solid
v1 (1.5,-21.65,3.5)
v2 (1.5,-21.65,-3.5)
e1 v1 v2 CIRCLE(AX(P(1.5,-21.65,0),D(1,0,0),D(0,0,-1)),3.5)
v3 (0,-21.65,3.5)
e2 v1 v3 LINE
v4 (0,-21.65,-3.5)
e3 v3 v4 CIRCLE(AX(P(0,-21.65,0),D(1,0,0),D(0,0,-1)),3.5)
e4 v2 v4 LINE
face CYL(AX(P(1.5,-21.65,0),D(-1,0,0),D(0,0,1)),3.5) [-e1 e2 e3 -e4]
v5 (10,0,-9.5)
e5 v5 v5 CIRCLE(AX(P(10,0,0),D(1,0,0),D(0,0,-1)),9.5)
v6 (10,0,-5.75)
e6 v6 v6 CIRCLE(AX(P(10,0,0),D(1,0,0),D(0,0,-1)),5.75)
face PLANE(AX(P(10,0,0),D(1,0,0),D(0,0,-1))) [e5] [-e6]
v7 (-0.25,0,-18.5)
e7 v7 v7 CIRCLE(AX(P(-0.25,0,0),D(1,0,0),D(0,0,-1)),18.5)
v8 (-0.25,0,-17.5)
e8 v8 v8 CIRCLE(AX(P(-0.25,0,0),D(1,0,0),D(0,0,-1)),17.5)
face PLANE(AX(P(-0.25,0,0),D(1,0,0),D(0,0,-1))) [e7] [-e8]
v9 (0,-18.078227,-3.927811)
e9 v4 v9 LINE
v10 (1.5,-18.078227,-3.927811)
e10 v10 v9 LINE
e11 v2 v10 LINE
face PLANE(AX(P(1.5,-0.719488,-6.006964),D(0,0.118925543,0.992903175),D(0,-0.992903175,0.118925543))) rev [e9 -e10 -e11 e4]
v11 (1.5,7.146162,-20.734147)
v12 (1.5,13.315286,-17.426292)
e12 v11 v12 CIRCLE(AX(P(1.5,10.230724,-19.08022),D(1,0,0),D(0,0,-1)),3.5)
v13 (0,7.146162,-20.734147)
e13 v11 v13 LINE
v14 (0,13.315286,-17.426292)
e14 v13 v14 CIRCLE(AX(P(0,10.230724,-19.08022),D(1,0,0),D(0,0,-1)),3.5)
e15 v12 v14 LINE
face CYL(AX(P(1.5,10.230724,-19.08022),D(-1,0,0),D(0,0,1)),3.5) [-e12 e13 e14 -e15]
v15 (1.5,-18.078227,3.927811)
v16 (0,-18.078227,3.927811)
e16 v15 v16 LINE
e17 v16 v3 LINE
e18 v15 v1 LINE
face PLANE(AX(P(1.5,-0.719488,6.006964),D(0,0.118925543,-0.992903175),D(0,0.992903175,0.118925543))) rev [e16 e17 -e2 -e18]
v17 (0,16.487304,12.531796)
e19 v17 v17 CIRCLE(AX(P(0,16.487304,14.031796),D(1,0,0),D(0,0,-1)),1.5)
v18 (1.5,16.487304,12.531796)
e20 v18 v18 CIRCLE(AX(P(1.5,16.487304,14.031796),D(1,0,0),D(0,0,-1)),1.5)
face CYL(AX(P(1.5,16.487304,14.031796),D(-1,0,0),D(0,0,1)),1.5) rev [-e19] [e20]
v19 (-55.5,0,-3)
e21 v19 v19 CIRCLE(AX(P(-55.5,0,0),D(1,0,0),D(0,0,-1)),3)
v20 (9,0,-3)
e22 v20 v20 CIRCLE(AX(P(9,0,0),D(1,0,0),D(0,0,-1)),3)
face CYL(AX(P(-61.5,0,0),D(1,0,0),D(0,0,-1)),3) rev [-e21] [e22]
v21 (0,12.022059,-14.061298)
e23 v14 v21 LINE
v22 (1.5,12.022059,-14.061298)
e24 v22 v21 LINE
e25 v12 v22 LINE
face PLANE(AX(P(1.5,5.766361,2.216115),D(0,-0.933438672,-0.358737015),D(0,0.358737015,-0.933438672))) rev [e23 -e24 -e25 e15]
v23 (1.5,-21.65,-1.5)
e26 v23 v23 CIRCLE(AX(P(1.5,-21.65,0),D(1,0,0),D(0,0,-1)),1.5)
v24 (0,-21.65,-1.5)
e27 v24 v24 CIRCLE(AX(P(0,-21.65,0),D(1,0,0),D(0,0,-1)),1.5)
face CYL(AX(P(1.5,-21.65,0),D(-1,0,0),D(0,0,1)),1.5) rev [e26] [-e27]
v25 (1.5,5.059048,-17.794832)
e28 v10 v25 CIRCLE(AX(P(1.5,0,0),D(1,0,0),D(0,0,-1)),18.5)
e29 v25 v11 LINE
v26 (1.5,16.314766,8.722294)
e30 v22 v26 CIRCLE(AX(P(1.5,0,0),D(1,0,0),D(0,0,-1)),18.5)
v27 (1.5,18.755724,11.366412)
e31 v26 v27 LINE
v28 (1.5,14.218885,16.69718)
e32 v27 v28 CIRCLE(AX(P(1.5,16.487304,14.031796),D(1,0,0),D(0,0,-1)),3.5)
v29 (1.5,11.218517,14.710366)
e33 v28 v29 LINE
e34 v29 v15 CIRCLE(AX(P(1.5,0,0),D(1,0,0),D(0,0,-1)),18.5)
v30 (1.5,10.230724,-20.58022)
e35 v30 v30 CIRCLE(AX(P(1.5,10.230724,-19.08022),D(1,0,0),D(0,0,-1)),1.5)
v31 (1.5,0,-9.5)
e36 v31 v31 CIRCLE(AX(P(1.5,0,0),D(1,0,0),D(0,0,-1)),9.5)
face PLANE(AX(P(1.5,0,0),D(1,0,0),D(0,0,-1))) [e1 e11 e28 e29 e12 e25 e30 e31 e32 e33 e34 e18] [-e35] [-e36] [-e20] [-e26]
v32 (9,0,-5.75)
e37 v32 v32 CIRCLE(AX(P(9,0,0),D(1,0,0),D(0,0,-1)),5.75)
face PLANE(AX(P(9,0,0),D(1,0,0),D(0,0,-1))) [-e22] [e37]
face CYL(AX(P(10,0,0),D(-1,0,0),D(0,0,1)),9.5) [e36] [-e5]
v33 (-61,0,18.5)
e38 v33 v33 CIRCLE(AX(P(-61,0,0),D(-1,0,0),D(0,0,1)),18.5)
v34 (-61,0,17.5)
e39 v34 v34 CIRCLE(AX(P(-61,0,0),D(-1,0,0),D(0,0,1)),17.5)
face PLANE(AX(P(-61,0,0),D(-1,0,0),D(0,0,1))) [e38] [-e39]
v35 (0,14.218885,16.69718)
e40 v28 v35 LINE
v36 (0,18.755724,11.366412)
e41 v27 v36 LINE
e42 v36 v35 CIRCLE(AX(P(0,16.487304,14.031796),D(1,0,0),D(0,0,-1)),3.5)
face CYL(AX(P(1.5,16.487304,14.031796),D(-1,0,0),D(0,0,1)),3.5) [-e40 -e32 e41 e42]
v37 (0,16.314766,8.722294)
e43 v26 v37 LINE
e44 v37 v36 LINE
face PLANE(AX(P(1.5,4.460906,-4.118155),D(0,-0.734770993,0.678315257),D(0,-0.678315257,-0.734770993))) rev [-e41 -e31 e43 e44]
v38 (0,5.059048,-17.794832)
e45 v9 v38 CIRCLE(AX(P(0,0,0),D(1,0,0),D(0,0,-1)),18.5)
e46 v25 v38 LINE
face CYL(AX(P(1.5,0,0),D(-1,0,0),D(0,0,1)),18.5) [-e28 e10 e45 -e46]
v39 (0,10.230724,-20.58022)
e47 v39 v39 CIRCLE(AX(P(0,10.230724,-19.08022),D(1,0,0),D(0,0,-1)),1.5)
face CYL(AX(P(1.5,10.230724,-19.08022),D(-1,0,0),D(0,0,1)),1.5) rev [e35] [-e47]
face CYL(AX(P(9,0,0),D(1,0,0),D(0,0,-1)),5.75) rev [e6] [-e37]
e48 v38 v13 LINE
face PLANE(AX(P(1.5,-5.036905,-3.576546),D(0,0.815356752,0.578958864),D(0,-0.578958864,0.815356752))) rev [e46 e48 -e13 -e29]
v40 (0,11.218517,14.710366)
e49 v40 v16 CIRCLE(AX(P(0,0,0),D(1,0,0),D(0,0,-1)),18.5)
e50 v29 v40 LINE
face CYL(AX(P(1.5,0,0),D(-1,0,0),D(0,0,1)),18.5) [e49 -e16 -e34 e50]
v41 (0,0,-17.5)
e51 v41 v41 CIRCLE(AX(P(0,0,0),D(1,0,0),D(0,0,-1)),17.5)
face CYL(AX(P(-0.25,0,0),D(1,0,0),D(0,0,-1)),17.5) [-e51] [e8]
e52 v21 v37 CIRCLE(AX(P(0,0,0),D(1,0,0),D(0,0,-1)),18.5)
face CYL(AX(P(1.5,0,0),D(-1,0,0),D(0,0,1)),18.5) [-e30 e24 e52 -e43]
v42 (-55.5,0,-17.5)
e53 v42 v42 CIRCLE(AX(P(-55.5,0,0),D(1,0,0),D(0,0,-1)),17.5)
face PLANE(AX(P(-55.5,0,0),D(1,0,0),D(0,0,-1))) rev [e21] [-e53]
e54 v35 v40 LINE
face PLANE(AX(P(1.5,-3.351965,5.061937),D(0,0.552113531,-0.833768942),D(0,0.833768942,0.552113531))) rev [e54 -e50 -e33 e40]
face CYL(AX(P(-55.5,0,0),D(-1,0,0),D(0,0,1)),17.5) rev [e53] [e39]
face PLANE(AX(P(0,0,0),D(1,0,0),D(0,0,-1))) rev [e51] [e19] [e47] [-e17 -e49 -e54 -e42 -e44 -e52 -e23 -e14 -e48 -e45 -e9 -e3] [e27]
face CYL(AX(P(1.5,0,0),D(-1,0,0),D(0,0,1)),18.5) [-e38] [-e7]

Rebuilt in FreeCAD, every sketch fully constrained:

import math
import FreeCAD as App
import Part
import Sketcher

V = App.Vector

doc = App.newDocument("Part")
params = doc.addObject("Spreadsheet::Sheet", "Params")
for row, (alias, value) in enumerate([
    ("sketch1_diameter", "3 mm"),
    ("sketch1_radius", "3.5 mm"),
    ("sketch1_radius2", "18.5 mm"),
    ("pad1_length", "1.5 mm"),
    ("sketch2_diameter", "37 mm"),
    ("pad2_length", "61.5 mm"),
    ("sketch3_diameter", "35 mm"),
    ("pocket1_length", "6 mm"),
    ("sketch4_diameter", "19 mm"),
    ("pad3_length", "8.5 mm"),
    ("sketch5_diameter", "11.5 mm"),
    ("pocket2_length", "1 mm"),
    ("sketch6_diameter", "6 mm"),
    ("sketch7_diameter", "37 mm"),
    ("sketch7_diameter2", "35 mm"),
    ("pocket4_length", "0.25 mm"),
    ("sketch8_diameter", "37 mm"),
    ("pocket5_length", "0.5 mm"),
], start=1):
    params.set(f"A{row}", alias)
    params.set(f"B{row}", "=" + value)
    params.setAlias(f"B{row}", alias)

body = doc.addObject("PartDesign::Body", "Body")

sketch1 = body.newObject("Sketcher::SketchObject", "Sketch")
sketch1.AttachmentSupport = (doc.getObject("YZ_Plane"), [""])
sketch1.MapMode = "FlatFace"
sketch1.addGeometry([
    Part.ArcOfCircle(Part.Circle(V(16.5, 14, 0), V(0, 0, 1), 3.5), math.radians(-50), math.radians(130)),
    Part.LineSegment(V(14.2, 16.7, 0), V(11.2, 14.7, 0)),
    Part.ArcOfCircle(Part.Circle(V(0, 0, 0), V(0, 0, 1), 18.5), math.radians(53), math.radians(168)),
    Part.LineSegment(V(-18.1, 3.9, 0), V(-21.6, 3.5, 0)),
    Part.ArcOfCircle(Part.Circle(V(-21.6, 0, 0), V(0, 0, 1), 3.5), math.radians(90), math.radians(270)),
    Part.LineSegment(V(-21.6, -3.5, 0), V(-18.1, -3.9, 0)),
    Part.ArcOfCircle(Part.Circle(V(0, 0, 0), V(0, 0, 1), 18.5), math.radians(-168), math.radians(-74)),
    Part.LineSegment(V(5.1, -17.8, 0), V(7.1, -20.7, 0)),
    Part.ArcOfCircle(Part.Circle(V(10.2, -19.1, 0), V(0, 0, 1), 3.5), math.radians(-152), math.radians(28)),
    Part.LineSegment(V(13.3, -17.4, 0), V(12, -14.1, 0)),
    Part.ArcOfCircle(Part.Circle(V(0, 0, 0), V(0, 0, 1), 18.5), math.radians(-49), math.radians(28)),
    Part.LineSegment(V(16.3, 8.7, 0), V(18.8, 11.4, 0)),
    Part.Circle(V(-21.6, 0, 0), V(0, 0, 1), 1.5),
    Part.Circle(V(16.5, 14, 0), V(0, 0, 1), 1.5),
    Part.Circle(V(10.2, -19.1, 0), V(0, 0, 1), 1.5),
], False)
sketch1.addConstraint([
    Sketcher.Constraint("Coincident", 0, 2, 1, 1),
    Sketcher.Constraint("Coincident", 1, 2, 2, 1),
    Sketcher.Constraint("Coincident", 2, 2, 3, 1),
    Sketcher.Constraint("Coincident", 3, 2, 4, 1),
    Sketcher.Constraint("Coincident", 4, 2, 5, 1),
    Sketcher.Constraint("Coincident", 5, 2, 6, 1),
    Sketcher.Constraint("Coincident", 6, 2, 7, 1),
    Sketcher.Constraint("Coincident", 7, 2, 8, 1),
    Sketcher.Constraint("Coincident", 8, 2, 9, 1),
    Sketcher.Constraint("Coincident", 9, 2, 10, 1),
    Sketcher.Constraint("Coincident", 10, 2, 11, 1),
    Sketcher.Constraint("Coincident", 11, 2, 0, 1),
    Sketcher.Constraint("Coincident", 2, 3, -1, 1),
    Sketcher.Constraint("Coincident", 6, 3, -1, 1),
    Sketcher.Constraint("Coincident", 10, 3, -1, 1),
    Sketcher.Constraint("Coincident", 12, 3, 4, 3),
    Sketcher.Constraint("Coincident", 13, 3, 0, 3),
    Sketcher.Constraint("Coincident", 14, 3, 8, 3),
    Sketcher.Constraint("Equal", 0, 4),
    Sketcher.Constraint("Equal", 2, 6),
    Sketcher.Constraint("Equal", 4, 8),
    Sketcher.Constraint("Equal", 6, 10),
    Sketcher.Constraint("Equal", 12, 13),
    Sketcher.Constraint("Equal", 13, 14),
    Sketcher.Constraint("Symmetric", 3, 2, 4, 2, -1),
    Sketcher.Constraint("Vertical", 12, 3, 3, 2),
    Sketcher.Constraint("Vertical", 2, 2, 5, 2),
    Sketcher.Constraint("Equal", 7, 9),
    Sketcher.Constraint("Equal", 1, 11),
    Sketcher.Constraint("Diameter", 12, 3.0),
    Sketcher.Constraint("Radius", 0, 3.5),
    Sketcher.Constraint("Radius", 2, 18.5),
    Sketcher.Constraint("DistanceX", 4, 3, -1, 1, 21.65),
    Sketcher.Constraint("DistanceY", 10, 2, 13, 3, 5.309502),
    Sketcher.Constraint("Distance", 1, 3.59856),
    Sketcher.Constraint("DistanceY", 8, 3, -1, 1, 19.08022),
    Sketcher.Constraint("DistanceY", -1, 1, 0, 2, 16.69718),
    Sketcher.Constraint("DistanceY", -1, 1, 2, 2, 3.927811),
    Sketcher.Constraint("DistanceY", 6, 2, -1, 1, 17.794832),
    Sketcher.Constraint("DistanceX", -1, 1, 7, 2, 7.146162),
    Sketcher.Constraint("DistanceX", -1, 1, 9, 2, 12.022059),
    Sketcher.Constraint("DistanceY", -1, 1, 11, 2, 11.366412),
    Sketcher.Constraint("DistanceX", 8, 3, 0, 3, 6.25658),
    Sketcher.Constraint("DistanceX", 0, 2, 13, 3, 2.26842),
])
sketch1.setExpression("Constraints[29]", "Params.sketch1_diameter")
sketch1.setExpression("Constraints[30]", "Params.sketch1_radius")
sketch1.setExpression("Constraints[31]", "Params.sketch1_radius2")
pad1 = body.newObject("PartDesign::Pad", "Pad")
pad1.Profile = sketch1
pad1.setExpression("Length", "Params.pad1_length")

sketch2 = body.newObject("Sketcher::SketchObject", "Sketch001")
sketch2.AttachmentSupport = (doc.getObject("YZ_Plane"), [""])
sketch2.MapMode = "FlatFace"
sketch2.addGeometry(Part.Circle(V(0, 0, 0), V(0, 0, 1), 18), False)
sketch2.addConstraint([
    Sketcher.Constraint("Coincident", 0, 3, -1, 1),
    Sketcher.Constraint("Diameter", 0, 37.0),
])
sketch2.setExpression("Constraints[1]", "Params.sketch2_diameter")
pad2 = body.newObject("PartDesign::Pad", "Pad001")
pad2.Profile = sketch2
pad2.setExpression("Length", "Params.pad2_length")
pad2.Reversed = True

sketch3 = body.newObject("Sketcher::SketchObject", "Sketch002")
sketch3.AttachmentSupport = (doc.getObject("YZ_Plane"), [""])
sketch3.MapMode = "FlatFace"
sketch3.AttachmentOffset = App.Placement(V(0, 0, -61.5), App.Rotation())
sketch3.addGeometry(Part.Circle(V(0, 0, 0), V(0, 0, 1), 18), False)
sketch3.addConstraint([
    Sketcher.Constraint("Coincident", 0, 3, -1, 1),
    Sketcher.Constraint("Diameter", 0, 35.0),
])
sketch3.setExpression("Constraints[1]", "Params.sketch3_diameter")
pocket1 = body.newObject("PartDesign::Pocket", "Pocket")
pocket1.Profile = sketch3
pocket1.setExpression("Length", "Params.pocket1_length")
pocket1.Reversed = True

sketch4 = body.newObject("Sketcher::SketchObject", "Sketch003")
sketch4.AttachmentSupport = (doc.getObject("YZ_Plane"), [""])
sketch4.MapMode = "FlatFace"
sketch4.AttachmentOffset = App.Placement(V(0, 0, 1.5), App.Rotation())
sketch4.addGeometry(Part.Circle(V(0, 0, 0), V(0, 0, 1), 10), False)
sketch4.addConstraint([
    Sketcher.Constraint("Coincident", 0, 3, -1, 1),
    Sketcher.Constraint("Diameter", 0, 19.0),
])
sketch4.setExpression("Constraints[1]", "Params.sketch4_diameter")
pad3 = body.newObject("PartDesign::Pad", "Pad002")
pad3.Profile = sketch4
pad3.setExpression("Length", "Params.pad3_length")

sketch5 = body.newObject("Sketcher::SketchObject", "Sketch004")
sketch5.AttachmentSupport = (doc.getObject("YZ_Plane"), [""])
sketch5.MapMode = "FlatFace"
sketch5.AttachmentOffset = App.Placement(V(0, 0, 10), App.Rotation())
sketch5.addGeometry(Part.Circle(V(0, 0, 0), V(0, 0, 1), 6), False)
sketch5.addConstraint([
    Sketcher.Constraint("Coincident", 0, 3, -1, 1),
    Sketcher.Constraint("Diameter", 0, 11.5),
])
sketch5.setExpression("Constraints[1]", "Params.sketch5_diameter")
pocket2 = body.newObject("PartDesign::Pocket", "Pocket001")
pocket2.Profile = sketch5
pocket2.setExpression("Length", "Params.pocket2_length")

sketch6 = body.newObject("Sketcher::SketchObject", "Sketch005")
sketch6.AttachmentSupport = (doc.getObject("YZ_Plane"), [""])
sketch6.MapMode = "FlatFace"
sketch6.AttachmentOffset = App.Placement(V(0, 0, 9), App.Rotation())
sketch6.addGeometry(Part.Circle(V(0, 0, 0), V(0, 0, 1), 3), False)
sketch6.addConstraint([
    Sketcher.Constraint("Coincident", 0, 3, -1, 1),
    Sketcher.Constraint("Diameter", 0, 6.0),
])
sketch6.setExpression("Constraints[1]", "Params.sketch6_diameter")
pocket3 = body.newObject("PartDesign::Pocket", "Pocket002")
pocket3.Profile = sketch6
pocket3.Type = "ThroughAll"
pocket3.Midplane = True

sketch7 = body.newObject("Sketcher::SketchObject", "Sketch006")
sketch7.AttachmentSupport = (doc.getObject("YZ_Plane"), [""])
sketch7.MapMode = "FlatFace"
sketch7.addGeometry([
    Part.Circle(V(0, 0, 0), V(0, 0, 1), 18),
    Part.Circle(V(0, 0, 0), V(0, 0, 1), 18),
], False)
sketch7.addConstraint([
    Sketcher.Constraint("Coincident", 0, 3, -1, 1),
    Sketcher.Constraint("Coincident", 1, 3, -1, 1),
    Sketcher.Constraint("Diameter", 0, 37.0),
    Sketcher.Constraint("Diameter", 1, 35.0),
])
sketch7.setExpression("Constraints[2]", "Params.sketch7_diameter")
sketch7.setExpression("Constraints[3]", "Params.sketch7_diameter2")
pocket4 = body.newObject("PartDesign::Pocket", "Pocket003")
pocket4.Profile = sketch7
pocket4.setExpression("Length", "Params.pocket4_length")

sketch8 = body.newObject("Sketcher::SketchObject", "Sketch007")
sketch8.AttachmentSupport = (doc.getObject("YZ_Plane"), [""])
sketch8.MapMode = "FlatFace"
sketch8.AttachmentOffset = App.Placement(V(0, 0, -61.5), App.Rotation())
sketch8.addGeometry(Part.Circle(V(0, 0, 0), V(0, 0, 1), 18), False)
sketch8.addConstraint([
    Sketcher.Constraint("Coincident", 0, 3, -1, 1),
    Sketcher.Constraint("Diameter", 0, 37.0),
])
sketch8.setExpression("Constraints[1]", "Params.sketch8_diameter")
pocket5 = body.newObject("PartDesign::Pocket", "Pocket004")
pocket5.Profile = sketch8
pocket5.setExpression("Length", "Params.pocket5_length")
pocket5.Reversed = True

doc.recompute()
